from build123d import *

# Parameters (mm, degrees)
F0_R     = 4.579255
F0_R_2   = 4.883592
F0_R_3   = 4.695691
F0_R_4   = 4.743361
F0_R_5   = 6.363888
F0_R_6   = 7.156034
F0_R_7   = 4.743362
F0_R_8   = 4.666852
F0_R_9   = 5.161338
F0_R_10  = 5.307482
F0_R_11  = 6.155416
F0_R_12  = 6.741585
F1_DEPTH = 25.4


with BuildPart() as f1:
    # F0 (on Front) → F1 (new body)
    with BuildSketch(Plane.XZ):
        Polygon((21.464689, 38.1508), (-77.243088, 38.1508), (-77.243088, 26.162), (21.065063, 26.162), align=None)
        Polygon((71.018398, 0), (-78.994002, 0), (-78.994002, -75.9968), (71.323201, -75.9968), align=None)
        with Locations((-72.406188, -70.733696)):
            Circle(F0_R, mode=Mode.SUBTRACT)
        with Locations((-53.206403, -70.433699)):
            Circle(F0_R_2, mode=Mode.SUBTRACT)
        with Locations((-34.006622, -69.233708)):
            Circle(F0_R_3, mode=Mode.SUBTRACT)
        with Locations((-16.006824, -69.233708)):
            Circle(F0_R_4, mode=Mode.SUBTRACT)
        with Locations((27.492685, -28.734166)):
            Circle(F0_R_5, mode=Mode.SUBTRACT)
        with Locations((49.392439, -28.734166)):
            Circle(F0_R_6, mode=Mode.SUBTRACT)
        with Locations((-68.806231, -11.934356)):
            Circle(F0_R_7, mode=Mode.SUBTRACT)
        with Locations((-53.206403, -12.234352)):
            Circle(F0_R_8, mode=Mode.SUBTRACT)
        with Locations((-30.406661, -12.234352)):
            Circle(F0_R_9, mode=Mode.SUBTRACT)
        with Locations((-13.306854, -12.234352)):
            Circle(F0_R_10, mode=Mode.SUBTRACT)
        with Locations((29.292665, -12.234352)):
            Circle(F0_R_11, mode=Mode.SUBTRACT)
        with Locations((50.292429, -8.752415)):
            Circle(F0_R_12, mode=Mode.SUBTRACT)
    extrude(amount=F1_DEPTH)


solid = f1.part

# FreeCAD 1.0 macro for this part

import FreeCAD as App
import Part
import Sketcher
Q = App.Units.Quantity

doc = App.newDocument("Part")
params = doc.addObject("Spreadsheet::Sheet", "Params")
for row, (alias, value) in enumerate([
    ("sketch1_width", "5.906 in"),
    ("sketch1_width2", "5.9180001 in"),
    ("sketch1_height", "0.472 in"),
    ("sketch1_height2", "2.992 in"),
    ("pad1_length", "1 in"),
], start=1):
    params.set(f"A{row}", alias)
    params.set(f"B{row}", "=" + value)
    params.setAlias(f"B{row}", alias)

body = doc.addObject("PartDesign::Body", "Body")
body.AllowCompound = True

# Sketch on XZ plane
sketch1 = body.newObject("Sketcher::SketchObject", "Sketch")
sketch1.AttachmentSupport = (doc.getObject("XZ_Plane"), [""])
sketch1.MapMode = "FlatFace"
sketch1.addGeometry(Part.LineSegment(App.Vector(21.464689, 38.1508, 0), App.Vector(-77.243088, 38.1508, 0)), False)
sketch1.addGeometry(Part.LineSegment(App.Vector(-77.243088, 38.1508, 0), App.Vector(-77.243088, 26.162, 0)), False)
sketch1.addGeometry(Part.LineSegment(App.Vector(-77.243088, 26.162, 0), App.Vector(21.065063, 26.162, 0)), False)
sketch1.addGeometry(Part.LineSegment(App.Vector(21.065063, 26.162, 0), App.Vector(21.464689, 38.1508, 0)), False)
sketch1.addGeometry(Part.LineSegment(App.Vector(71.018398, 0, 0), App.Vector(-78.994002, 0, 0)), False)
sketch1.addGeometry(Part.LineSegment(App.Vector(-78.994002, 0, 0), App.Vector(-78.994002, -75.9968, 0)), False)
sketch1.addGeometry(Part.LineSegment(App.Vector(-78.994002, -75.9968, 0), App.Vector(71.323201, -75.9968, 0)), False)
sketch1.addGeometry(Part.LineSegment(App.Vector(71.323201, -75.9968, 0), App.Vector(71.018398, 0, 0)), False)
sketch1.addGeometry(Part.Circle(App.Vector(-72.406188, -70.733696, 0), App.Vector(0, 0, 1), 4.579255), False)
sketch1.addGeometry(Part.Circle(App.Vector(-53.206403, -70.433699, 0), App.Vector(0, 0, 1), 4.883592), False)
sketch1.addGeometry(Part.Circle(App.Vector(-34.006622, -69.233708, 0), App.Vector(0, 0, 1), 4.695691), False)
sketch1.addGeometry(Part.Circle(App.Vector(-16.006824, -69.233708, 0), App.Vector(0, 0, 1), 4.743361), False)
sketch1.addGeometry(Part.Circle(App.Vector(-68.806231, -11.934356, 0), App.Vector(0, 0, 1), 4.743362), False)
sketch1.addGeometry(Part.Circle(App.Vector(-53.206403, -12.234352, 0), App.Vector(0, 0, 1), 4.666852), False)
sketch1.addGeometry(Part.Circle(App.Vector(-30.406661, -12.234352, 0), App.Vector(0, 0, 1), 5.161338), False)
sketch1.addGeometry(Part.Circle(App.Vector(-13.306854, -12.234352, 0), App.Vector(0, 0, 1), 5.307482), False)
sketch1.addGeometry(Part.Circle(App.Vector(27.492685, -28.734166, 0), App.Vector(0, 0, 1), 6.363888), False)
sketch1.addGeometry(Part.Circle(App.Vector(49.392439, -28.734166, 0), App.Vector(0, 0, 1), 7.156034), False)
sketch1.addGeometry(Part.Circle(App.Vector(29.292665, -12.234352, 0), App.Vector(0, 0, 1), 6.155416), False)
sketch1.addGeometry(Part.Circle(App.Vector(50.292429, -8.752415, 0), App.Vector(0, 0, 1), 6.741585), False)
sketch1.addConstraint(Sketcher.Constraint("Coincident", 0, 2, 1, 1))
sketch1.addConstraint(Sketcher.Constraint("Coincident", 1, 2, 2, 1))
sketch1.addConstraint(Sketcher.Constraint("Coincident", 2, 2, 3, 1))
sketch1.addConstraint(Sketcher.Constraint("Coincident", 3, 2, 0, 1))
sketch1.addConstraint(Sketcher.Constraint("Coincident", 4, 2, 5, 1))
sketch1.addConstraint(Sketcher.Constraint("Coincident", 5, 2, 6, 1))
sketch1.addConstraint(Sketcher.Constraint("Coincident", 6, 2, 7, 1))
sketch1.addConstraint(Sketcher.Constraint("Coincident", 7, 2, 4, 1))
sketch1.addConstraint(Sketcher.Constraint("Horizontal", 0))
sketch1.addConstraint(Sketcher.Constraint("Vertical", 1))
sketch1.addConstraint(Sketcher.Constraint("Horizontal", 2))
sketch1.addConstraint(Sketcher.Constraint("Horizontal", 4))
sketch1.addConstraint(Sketcher.Constraint("Vertical", 5))
sketch1.addConstraint(Sketcher.Constraint("Horizontal", 6))
sketch1.addConstraint(Sketcher.Constraint("Equal", 11, 12))
sketch1.addConstraint(Sketcher.Constraint("PointOnObject", 4, 2, -1))
sketch1.addConstraint(Sketcher.Constraint("Horizontal", 10, 3, 11, 3))
sketch1.addConstraint(Sketcher.Constraint("Horizontal", 13, 3, 14, 3))
sketch1.addConstraint(Sketcher.Constraint("Horizontal", 14, 3, 15, 3))
sketch1.addConstraint(Sketcher.Constraint("Horizontal", 16, 3, 17, 3))
sketch1.addConstraint(Sketcher.Constraint("Horizontal", 15, 3, 18, 3))
sketch1.addConstraint(Sketcher.Constraint("Vertical", 9, 3, 13, 3))
sketch1.addConstraint(Sketcher.Constraint("DistanceX", 4, 2, 4, 1, Q("5.906 in")))
sketch1.addConstraint(Sketcher.Constraint("DistanceX", 6, 1, 6, 2, Q("5.9180001 in")))
sketch1.addConstraint(Sketcher.Constraint("DistanceY", 1, 2, 1, 1, Q("0.472 in")))
sketch1.addConstraint(Sketcher.Constraint("DistanceY", 5, 2, 5, 1, Q("2.992 in")))
sketch1.addConstraint(Sketcher.Constraint("DistanceY", -1, 1, 1, 2, Q("1.03 in")))
sketch1.addConstraint(Sketcher.Constraint("DistanceX", 4, 2, -1, 1, Q("3.1100001 in")))
sketch1.addConstraint(Sketcher.Constraint("Diameter", 8, Q("9.15851 mm")))
sketch1.addConstraint(Sketcher.Constraint("Diameter", 19, Q("13.48317 mm")))
sketch1.addConstraint(Sketcher.Constraint("Diameter", 9, Q("9.767184 mm")))
sketch1.addConstraint(Sketcher.Constraint("Diameter", 10, Q("9.391382 mm")))
sketch1.addConstraint(Sketcher.Constraint("Diameter", 11, Q("9.486722 mm")))
sketch1.addConstraint(Sketcher.Constraint("Diameter", 13, Q("9.333704 mm")))
sketch1.addConstraint(Sketcher.Constraint("Diameter", 14, Q("10.322676 mm")))
sketch1.addConstraint(Sketcher.Constraint("Diameter", 15, Q("10.614964 mm")))
sketch1.addConstraint(Sketcher.Constraint("Diameter", 16, Q("12.727776 mm")))
sketch1.addConstraint(Sketcher.Constraint("Diameter", 17, Q("14.312068 mm")))
sketch1.addConstraint(Sketcher.Constraint("Diameter", 18, Q("12.310832 mm")))
sketch1.addConstraint(Sketcher.Constraint("DistanceX", 2, 1, 2, 2, Q("98.308151 mm")))
sketch1.addConstraint(Sketcher.Constraint("DistanceY", 9, 3, -1, 1, Q("70.433699 mm")))
sketch1.addConstraint(Sketcher.Constraint("DistanceX", 14, 3, 17, 3, Q("79.7991 mm")))
sketch1.addConstraint(Sketcher.Constraint("DistanceX", 0, 2, 8, 3, Q("4.8369 mm")))
sketch1.addConstraint(Sketcher.Constraint("DistanceX", 4, 2, 13, 3, Q("25.787599 mm")))
sketch1.addConstraint(Sketcher.Constraint("Distance", 3, Q("11.995459 mm")))
sketch1.addConstraint(Sketcher.Constraint("DistanceX", 8, 3, -1, 1, Q("72.406188 mm")))
sketch1.addConstraint(Sketcher.Constraint("DistanceX", 12, 3, -1, 1, Q("68.806231 mm")))
sketch1.addConstraint(Sketcher.Constraint("DistanceX", 14, 3, -1, 1, Q("30.406661 mm")))
sketch1.addConstraint(Sketcher.Constraint("DistanceX", -1, 1, 19, 3, Q("50.292429 mm")))
sketch1.addConstraint(Sketcher.Constraint("DistanceX", 9, 3, 10, 3, Q("19.199781 mm")))
sketch1.addConstraint(Sketcher.Constraint("DistanceY", 9, 3, 10, 3, Q("1.199991 mm")))
sketch1.addConstraint(Sketcher.Constraint("DistanceY", 8, 3, 10, 3, Q("1.499988 mm")))
sketch1.addConstraint(Sketcher.Constraint("DistanceX", 9, 3, 11, 3, Q("37.199579 mm")))
sketch1.addConstraint(Sketcher.Constraint("DistanceY", 8, 3, 12, 3, Q("58.79934 mm")))
sketch1.addConstraint(Sketcher.Constraint("DistanceX", 13, 3, 15, 3, Q("39.899549 mm")))
sketch1.addConstraint(Sketcher.Constraint("DistanceX", 15, 3, 16, 3, Q("40.799539 mm")))
sketch1.addConstraint(Sketcher.Constraint("DistanceY", 11, 3, 16, 3, Q("40.499542 mm")))
sketch1.addConstraint(Sketcher.Constraint("DistanceX", 16, 3, 18, 3, Q("1.79998 mm")))
sketch1.addConstraint(Sketcher.Constraint("DistanceY", 17, 3, 19, 3, Q("19.981751 mm")))
sketch1.addConstraint(Sketcher.Constraint("DistanceY", 13, 3, 0, 2, Q("50.385152 mm")))
sketch1.setExpression("Constraints[22]", "Params.sketch1_width")
sketch1.setExpression("Constraints[23]", "Params.sketch1_width2")
sketch1.setExpression("Constraints[24]", "Params.sketch1_height")
sketch1.setExpression("Constraints[25]", "Params.sketch1_height2")
pad1 = body.newObject("PartDesign::Pad", "Pad")
pad1.Profile = sketch1
pad1.setExpression("Length", "Params.pad1_length")

doc.recompute()
